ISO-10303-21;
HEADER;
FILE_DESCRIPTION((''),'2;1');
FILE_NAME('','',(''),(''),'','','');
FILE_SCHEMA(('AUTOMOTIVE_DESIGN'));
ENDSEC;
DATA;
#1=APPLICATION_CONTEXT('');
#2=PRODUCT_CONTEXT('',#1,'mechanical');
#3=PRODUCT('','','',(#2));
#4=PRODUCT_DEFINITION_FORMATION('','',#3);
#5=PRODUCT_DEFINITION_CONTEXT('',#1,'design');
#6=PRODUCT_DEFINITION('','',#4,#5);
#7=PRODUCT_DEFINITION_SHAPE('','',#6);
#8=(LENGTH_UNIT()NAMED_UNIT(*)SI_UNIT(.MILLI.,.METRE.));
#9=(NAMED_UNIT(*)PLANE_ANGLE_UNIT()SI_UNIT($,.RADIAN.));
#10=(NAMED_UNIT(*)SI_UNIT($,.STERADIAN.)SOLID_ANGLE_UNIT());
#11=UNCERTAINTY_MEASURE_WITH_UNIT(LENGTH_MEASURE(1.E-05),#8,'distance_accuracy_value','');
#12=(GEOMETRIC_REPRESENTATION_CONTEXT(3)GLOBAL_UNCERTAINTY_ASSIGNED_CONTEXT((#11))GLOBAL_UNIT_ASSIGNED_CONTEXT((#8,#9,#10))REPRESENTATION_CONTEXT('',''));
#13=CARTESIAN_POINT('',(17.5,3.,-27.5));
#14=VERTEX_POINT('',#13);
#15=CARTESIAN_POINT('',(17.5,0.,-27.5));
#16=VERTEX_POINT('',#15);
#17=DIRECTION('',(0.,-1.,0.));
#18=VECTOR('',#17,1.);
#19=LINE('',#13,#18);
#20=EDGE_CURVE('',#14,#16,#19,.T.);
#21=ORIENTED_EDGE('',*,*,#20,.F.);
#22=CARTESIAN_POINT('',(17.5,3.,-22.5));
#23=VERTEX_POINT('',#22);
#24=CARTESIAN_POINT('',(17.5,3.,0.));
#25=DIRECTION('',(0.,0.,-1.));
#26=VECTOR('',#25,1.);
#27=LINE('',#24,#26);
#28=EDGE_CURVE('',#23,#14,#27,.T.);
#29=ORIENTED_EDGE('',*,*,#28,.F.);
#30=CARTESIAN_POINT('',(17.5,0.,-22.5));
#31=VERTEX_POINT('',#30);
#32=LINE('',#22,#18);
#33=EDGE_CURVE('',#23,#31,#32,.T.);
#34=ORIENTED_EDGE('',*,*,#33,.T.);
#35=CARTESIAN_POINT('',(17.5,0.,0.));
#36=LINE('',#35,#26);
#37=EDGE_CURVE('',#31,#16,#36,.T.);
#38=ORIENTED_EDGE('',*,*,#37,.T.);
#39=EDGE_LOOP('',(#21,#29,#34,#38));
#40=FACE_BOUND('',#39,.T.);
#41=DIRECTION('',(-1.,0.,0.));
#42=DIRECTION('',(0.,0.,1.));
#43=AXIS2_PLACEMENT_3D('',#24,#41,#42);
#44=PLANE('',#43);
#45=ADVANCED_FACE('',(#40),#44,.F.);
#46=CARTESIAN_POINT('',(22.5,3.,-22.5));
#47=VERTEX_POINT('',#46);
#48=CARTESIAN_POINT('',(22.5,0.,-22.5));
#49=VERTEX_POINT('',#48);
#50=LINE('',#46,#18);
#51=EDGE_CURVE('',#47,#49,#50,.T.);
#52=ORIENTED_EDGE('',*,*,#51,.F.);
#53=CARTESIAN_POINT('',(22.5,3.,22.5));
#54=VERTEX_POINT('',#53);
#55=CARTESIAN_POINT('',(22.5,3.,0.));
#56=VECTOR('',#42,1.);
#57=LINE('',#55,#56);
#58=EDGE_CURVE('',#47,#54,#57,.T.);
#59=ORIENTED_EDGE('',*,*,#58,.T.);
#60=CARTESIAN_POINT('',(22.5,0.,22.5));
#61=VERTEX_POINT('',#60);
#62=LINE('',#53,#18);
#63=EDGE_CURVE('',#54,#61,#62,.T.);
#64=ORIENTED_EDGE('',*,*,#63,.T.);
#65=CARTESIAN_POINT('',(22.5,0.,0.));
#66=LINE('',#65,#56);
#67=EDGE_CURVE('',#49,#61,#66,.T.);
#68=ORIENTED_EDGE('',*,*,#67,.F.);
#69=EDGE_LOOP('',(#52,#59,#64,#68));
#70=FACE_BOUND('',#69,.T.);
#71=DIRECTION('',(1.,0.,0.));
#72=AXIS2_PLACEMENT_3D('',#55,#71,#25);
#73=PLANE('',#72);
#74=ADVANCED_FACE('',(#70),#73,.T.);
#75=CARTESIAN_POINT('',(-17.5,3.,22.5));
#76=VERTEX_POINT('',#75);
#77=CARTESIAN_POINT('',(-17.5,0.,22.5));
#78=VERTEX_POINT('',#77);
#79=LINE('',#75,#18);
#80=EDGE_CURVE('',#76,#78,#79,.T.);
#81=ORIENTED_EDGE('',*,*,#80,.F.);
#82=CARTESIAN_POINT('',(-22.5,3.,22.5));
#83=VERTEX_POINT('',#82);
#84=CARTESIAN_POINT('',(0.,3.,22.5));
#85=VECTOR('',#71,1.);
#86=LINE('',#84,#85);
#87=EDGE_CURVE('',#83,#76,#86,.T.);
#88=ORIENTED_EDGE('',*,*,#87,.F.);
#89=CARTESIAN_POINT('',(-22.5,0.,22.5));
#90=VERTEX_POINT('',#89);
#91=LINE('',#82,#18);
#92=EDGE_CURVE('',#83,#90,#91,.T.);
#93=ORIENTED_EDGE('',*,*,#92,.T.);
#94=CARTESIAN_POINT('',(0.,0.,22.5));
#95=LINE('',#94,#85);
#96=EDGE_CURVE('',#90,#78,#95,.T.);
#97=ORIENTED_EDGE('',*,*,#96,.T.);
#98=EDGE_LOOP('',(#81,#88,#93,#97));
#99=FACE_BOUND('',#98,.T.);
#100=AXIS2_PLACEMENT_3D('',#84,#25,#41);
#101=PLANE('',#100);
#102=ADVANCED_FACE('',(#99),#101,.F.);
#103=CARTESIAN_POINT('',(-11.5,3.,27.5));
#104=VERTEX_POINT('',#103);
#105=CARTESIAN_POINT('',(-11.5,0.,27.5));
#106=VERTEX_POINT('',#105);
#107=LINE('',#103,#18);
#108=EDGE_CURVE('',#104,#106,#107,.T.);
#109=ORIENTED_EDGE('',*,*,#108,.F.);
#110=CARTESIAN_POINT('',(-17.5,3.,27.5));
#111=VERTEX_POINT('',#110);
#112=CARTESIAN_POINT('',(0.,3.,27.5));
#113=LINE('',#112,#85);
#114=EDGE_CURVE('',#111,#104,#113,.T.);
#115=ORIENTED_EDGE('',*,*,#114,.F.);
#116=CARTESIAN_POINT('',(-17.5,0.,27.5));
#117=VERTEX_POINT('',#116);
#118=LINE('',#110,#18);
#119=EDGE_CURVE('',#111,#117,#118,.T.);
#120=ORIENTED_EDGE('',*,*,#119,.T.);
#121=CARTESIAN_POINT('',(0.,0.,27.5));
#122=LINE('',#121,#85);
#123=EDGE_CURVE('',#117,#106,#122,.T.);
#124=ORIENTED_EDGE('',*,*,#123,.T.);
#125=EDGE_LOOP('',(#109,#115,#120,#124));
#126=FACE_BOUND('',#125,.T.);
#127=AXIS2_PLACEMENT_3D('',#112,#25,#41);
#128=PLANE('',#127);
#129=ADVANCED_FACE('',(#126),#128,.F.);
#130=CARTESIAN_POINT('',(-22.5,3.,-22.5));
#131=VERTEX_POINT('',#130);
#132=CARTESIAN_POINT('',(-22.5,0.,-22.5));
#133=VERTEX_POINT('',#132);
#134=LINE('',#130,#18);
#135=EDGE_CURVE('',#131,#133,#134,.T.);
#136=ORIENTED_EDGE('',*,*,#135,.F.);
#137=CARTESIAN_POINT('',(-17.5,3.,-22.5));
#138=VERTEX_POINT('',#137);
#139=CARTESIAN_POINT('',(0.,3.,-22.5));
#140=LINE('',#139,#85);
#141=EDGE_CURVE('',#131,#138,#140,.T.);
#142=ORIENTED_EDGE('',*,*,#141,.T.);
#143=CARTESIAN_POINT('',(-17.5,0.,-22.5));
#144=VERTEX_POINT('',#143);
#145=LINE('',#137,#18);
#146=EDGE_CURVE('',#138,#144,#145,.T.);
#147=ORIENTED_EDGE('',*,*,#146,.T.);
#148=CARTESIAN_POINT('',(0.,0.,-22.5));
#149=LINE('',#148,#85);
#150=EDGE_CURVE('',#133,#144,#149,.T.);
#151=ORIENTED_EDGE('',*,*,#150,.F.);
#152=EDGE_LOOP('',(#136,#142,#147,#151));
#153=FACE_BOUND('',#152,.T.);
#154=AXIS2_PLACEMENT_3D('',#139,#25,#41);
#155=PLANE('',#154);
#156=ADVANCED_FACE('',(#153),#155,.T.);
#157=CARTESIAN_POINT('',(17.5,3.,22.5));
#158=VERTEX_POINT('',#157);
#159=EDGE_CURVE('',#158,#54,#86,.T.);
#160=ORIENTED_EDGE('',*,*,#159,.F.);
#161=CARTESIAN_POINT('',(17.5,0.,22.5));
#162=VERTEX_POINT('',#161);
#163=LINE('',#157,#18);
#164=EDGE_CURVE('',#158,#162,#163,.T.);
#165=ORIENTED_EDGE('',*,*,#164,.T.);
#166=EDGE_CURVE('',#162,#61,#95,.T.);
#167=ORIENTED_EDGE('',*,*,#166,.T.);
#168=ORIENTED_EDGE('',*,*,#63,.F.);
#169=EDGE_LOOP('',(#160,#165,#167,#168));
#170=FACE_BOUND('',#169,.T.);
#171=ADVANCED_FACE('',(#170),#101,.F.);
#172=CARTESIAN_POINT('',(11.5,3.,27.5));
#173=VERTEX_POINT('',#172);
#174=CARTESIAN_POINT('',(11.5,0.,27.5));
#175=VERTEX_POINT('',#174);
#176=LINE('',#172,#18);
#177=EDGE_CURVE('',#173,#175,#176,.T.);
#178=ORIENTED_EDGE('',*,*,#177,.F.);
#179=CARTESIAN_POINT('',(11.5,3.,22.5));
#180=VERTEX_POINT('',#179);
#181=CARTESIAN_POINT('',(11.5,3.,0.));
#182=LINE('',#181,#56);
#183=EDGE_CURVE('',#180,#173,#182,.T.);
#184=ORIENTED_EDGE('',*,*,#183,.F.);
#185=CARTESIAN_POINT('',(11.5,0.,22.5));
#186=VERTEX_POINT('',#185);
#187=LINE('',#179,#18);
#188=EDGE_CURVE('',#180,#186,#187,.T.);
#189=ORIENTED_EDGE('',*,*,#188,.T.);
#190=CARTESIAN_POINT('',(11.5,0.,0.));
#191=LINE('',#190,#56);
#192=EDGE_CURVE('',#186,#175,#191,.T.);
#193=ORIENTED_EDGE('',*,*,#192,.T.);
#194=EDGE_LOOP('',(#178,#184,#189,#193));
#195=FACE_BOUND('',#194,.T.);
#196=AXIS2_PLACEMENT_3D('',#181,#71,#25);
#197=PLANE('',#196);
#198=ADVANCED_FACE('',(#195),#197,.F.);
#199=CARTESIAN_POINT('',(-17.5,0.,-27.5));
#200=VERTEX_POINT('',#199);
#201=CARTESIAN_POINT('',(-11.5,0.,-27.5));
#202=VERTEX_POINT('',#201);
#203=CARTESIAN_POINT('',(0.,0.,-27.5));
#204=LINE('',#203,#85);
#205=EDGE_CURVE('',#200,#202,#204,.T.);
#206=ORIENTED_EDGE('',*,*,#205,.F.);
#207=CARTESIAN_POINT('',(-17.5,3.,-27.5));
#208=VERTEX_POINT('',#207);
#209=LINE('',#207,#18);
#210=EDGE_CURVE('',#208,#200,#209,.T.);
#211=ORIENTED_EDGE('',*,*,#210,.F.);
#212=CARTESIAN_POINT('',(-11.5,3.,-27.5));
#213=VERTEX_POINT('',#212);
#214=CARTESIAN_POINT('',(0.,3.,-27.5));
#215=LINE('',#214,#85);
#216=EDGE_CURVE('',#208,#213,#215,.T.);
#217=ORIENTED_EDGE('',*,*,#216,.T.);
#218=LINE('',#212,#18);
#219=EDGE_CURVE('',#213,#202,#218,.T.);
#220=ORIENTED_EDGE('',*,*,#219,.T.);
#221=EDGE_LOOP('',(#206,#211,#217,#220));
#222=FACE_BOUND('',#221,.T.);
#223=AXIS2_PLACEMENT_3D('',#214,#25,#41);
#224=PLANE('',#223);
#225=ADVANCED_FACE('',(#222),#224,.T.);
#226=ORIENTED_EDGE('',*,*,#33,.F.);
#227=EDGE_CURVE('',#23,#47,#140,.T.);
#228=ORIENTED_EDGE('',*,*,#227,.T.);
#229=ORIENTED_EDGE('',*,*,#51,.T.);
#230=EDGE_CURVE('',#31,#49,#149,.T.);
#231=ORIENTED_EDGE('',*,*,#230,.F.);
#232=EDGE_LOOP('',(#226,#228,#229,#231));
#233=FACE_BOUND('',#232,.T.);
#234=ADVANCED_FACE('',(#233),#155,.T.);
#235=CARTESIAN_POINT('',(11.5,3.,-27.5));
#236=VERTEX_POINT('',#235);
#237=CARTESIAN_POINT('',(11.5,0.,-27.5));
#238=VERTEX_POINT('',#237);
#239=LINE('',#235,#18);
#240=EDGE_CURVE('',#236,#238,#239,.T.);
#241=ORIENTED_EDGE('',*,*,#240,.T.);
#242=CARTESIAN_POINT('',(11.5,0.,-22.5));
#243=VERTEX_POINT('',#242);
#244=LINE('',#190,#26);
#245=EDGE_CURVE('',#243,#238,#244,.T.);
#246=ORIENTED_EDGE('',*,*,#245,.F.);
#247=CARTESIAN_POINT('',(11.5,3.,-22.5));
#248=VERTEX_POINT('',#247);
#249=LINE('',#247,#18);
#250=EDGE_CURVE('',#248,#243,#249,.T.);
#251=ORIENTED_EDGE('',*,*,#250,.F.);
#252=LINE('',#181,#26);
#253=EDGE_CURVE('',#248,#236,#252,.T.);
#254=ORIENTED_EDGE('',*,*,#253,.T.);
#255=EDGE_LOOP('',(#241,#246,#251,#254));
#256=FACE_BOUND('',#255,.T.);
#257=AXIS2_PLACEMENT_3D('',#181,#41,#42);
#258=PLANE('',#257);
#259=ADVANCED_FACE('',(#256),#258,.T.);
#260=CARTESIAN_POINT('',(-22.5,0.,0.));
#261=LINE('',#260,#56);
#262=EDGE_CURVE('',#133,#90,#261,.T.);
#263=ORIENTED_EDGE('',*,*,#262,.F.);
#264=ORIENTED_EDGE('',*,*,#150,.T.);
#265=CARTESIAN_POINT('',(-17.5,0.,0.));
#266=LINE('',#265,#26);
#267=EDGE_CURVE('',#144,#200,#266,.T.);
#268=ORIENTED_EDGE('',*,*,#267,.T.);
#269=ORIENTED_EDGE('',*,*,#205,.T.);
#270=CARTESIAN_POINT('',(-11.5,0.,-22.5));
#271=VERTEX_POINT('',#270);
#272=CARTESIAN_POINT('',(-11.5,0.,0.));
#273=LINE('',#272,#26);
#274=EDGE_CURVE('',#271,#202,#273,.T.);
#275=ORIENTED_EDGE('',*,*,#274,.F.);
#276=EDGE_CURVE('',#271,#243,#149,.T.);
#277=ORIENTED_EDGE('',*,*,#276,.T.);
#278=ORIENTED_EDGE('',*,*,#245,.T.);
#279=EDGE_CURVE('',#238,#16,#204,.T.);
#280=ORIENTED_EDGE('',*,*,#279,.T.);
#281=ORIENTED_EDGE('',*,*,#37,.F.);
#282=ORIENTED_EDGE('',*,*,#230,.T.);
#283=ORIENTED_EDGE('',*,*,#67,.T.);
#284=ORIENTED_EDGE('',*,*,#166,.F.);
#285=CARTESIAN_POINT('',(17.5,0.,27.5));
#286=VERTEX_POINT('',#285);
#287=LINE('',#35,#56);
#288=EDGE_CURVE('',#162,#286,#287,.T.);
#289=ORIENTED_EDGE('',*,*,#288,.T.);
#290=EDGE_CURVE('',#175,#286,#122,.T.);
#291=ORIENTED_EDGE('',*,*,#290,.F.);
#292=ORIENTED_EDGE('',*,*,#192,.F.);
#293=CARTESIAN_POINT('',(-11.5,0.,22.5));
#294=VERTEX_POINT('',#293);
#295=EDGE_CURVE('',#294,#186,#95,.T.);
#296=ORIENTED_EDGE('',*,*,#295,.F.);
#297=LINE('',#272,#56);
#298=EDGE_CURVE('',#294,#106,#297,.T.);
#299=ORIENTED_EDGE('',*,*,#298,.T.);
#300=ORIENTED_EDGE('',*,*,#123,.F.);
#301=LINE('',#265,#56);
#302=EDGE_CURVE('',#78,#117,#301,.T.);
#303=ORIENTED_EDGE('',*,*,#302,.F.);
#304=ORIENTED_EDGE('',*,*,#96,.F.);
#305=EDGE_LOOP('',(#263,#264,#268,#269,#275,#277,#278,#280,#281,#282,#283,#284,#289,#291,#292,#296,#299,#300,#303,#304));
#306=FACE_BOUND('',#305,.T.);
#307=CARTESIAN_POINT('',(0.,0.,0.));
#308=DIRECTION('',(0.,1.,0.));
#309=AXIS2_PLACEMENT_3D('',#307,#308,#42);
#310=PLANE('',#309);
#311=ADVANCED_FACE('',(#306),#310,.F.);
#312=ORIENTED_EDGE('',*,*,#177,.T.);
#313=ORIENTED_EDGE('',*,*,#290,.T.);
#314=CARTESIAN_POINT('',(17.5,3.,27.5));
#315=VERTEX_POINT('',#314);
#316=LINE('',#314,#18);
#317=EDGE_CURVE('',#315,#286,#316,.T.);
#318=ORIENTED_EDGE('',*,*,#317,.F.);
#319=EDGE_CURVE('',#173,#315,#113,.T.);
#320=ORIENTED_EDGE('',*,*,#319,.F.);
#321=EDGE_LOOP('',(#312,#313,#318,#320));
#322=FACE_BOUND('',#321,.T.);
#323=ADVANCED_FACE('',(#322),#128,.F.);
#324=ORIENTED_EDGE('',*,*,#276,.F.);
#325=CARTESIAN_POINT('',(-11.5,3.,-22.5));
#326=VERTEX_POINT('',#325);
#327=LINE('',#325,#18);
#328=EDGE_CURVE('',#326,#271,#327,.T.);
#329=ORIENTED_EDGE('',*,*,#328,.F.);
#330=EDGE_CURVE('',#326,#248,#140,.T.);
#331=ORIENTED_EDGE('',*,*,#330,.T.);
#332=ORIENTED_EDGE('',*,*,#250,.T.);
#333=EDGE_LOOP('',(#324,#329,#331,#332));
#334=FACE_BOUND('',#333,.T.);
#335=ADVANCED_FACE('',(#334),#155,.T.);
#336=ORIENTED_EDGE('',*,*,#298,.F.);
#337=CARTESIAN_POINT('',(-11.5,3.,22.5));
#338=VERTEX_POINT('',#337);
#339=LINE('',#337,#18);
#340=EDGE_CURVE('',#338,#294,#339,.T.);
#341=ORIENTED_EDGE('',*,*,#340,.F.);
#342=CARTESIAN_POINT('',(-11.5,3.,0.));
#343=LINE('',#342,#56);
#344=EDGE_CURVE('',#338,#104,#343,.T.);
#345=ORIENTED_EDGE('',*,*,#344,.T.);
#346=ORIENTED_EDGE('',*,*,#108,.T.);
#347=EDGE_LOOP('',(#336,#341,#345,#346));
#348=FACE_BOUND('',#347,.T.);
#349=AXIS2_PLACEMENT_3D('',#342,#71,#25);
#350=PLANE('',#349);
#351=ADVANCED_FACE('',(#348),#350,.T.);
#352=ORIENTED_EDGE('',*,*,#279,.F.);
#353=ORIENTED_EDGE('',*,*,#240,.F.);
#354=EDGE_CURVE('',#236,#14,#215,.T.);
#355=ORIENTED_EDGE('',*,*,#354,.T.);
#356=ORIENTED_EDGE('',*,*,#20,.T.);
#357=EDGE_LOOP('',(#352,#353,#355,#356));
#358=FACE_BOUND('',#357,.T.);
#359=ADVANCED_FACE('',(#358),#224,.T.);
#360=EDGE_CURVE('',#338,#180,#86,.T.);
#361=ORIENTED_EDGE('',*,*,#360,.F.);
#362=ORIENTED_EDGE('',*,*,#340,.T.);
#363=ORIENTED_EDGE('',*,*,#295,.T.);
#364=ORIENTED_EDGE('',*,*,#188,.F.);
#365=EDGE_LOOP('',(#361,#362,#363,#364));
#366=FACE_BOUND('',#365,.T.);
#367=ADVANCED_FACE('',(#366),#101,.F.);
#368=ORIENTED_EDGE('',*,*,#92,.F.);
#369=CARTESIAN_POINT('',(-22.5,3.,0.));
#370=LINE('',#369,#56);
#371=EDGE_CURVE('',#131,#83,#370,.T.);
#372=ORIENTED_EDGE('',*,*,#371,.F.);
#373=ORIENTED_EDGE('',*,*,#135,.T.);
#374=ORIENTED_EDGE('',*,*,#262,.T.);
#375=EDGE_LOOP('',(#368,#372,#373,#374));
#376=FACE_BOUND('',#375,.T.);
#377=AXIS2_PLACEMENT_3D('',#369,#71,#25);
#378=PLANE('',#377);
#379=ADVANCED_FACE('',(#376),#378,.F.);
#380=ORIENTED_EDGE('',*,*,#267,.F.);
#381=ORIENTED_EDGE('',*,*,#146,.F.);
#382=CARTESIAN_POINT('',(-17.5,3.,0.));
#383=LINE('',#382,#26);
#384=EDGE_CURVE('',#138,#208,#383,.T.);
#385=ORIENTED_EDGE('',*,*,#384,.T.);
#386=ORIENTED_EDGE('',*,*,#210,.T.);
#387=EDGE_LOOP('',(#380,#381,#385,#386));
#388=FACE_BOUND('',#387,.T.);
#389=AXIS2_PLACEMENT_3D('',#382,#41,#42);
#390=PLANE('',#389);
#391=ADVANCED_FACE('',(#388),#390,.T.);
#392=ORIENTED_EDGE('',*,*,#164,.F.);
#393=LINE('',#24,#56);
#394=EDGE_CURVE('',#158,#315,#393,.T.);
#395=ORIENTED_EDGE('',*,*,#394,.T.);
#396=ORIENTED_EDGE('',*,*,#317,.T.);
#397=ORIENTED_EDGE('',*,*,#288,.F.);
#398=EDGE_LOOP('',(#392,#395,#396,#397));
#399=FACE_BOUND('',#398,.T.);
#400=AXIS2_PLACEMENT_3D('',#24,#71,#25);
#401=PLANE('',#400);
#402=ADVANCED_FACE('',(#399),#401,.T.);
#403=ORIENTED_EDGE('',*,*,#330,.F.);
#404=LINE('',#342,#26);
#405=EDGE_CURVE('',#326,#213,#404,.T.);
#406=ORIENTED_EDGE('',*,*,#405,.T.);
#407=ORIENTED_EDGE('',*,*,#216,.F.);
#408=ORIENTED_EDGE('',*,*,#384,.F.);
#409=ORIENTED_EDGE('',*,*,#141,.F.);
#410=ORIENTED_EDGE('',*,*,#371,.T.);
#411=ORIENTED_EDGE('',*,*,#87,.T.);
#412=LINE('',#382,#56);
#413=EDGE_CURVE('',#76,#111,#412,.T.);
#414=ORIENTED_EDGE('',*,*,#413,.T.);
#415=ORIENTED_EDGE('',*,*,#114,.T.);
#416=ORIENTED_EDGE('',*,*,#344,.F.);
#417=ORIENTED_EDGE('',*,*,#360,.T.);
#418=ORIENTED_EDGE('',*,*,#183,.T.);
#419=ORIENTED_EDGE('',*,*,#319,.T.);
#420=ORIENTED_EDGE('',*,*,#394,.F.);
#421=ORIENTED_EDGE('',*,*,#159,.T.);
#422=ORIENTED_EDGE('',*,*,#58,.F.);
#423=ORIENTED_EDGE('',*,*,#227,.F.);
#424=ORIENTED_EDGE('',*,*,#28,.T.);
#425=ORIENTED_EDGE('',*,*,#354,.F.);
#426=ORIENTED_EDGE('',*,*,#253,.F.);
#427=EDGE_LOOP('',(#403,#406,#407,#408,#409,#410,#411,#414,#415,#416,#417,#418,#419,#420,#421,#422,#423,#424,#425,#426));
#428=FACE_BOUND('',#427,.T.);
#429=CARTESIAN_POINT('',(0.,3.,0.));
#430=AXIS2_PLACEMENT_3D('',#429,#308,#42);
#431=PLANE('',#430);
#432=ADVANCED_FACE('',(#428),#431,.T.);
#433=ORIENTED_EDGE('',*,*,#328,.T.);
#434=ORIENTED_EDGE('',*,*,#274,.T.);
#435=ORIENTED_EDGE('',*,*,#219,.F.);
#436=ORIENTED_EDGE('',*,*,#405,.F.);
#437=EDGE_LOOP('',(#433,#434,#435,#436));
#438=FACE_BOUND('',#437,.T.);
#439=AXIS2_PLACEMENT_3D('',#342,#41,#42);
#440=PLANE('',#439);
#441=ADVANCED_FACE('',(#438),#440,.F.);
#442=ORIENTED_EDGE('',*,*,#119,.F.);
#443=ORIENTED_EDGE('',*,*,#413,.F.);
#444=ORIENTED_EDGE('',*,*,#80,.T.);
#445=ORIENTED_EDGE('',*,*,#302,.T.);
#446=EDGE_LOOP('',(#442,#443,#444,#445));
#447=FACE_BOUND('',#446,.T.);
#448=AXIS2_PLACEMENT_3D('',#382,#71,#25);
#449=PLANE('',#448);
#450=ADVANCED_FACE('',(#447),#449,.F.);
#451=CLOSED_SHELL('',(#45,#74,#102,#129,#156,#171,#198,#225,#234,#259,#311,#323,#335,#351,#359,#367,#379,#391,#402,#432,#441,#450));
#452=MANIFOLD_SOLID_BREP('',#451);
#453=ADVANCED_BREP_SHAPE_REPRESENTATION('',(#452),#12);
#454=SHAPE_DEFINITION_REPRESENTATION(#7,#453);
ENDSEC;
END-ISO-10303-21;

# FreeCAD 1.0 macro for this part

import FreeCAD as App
import Part
import Sketcher
Q = App.Units.Quantity


def add_polygon(sketch, points):
    """Adds a closed chain of lines whose ends are joined by coincident constraints."""
    first, n = sketch.GeometryCount, len(points)
    for a, b in zip(points, points[1:] + points[:1]):
        sketch.addGeometry(Part.LineSegment(App.Vector(*a, 0), App.Vector(*b, 0)), False)
    for i in range(n):
        sketch.addConstraint(Sketcher.Constraint("Coincident", first + i, 2, first + (i + 1) % n, 1))

doc = App.newDocument("Part")
body = doc.addObject("PartDesign::Body", "Body")

# Sketch on XZ plane
sketch1 = body.newObject("Sketcher::SketchObject", "Sketch")
sketch1.AttachmentSupport = (doc.getObject("XZ_Plane"), [""])
sketch1.MapMode = "FlatFace"
add_polygon(sketch1, [(-22, -22), (-22, 22), (-18, 22), (-18, 28), (-12, 28), (-12, 22), (12, 22), (12, 28), (18, 28), (18, 22), (22, 22), (22, -22), (18, -22), (18, -28), (12, -28), (12, -22), (-12, -22), (-12, -28), (-18, -28), (-18, -22)])  # lines 0-19
sketch1.addConstraint([
    Sketcher.Constraint("Vertical", 0),
    Sketcher.Constraint("Horizontal", 1),
    Sketcher.Constraint("Vertical", 2),
    Sketcher.Constraint("Horizontal", 3),
    Sketcher.Constraint("Vertical", 4),
    Sketcher.Constraint("Horizontal", 5),
    Sketcher.Constraint("Vertical", 6),
    Sketcher.Constraint("Horizontal", 7),
    Sketcher.Constraint("Vertical", 8),
    Sketcher.Constraint("Horizontal", 9),
    Sketcher.Constraint("Vertical", 10),
    Sketcher.Constraint("Horizontal", 11),
    Sketcher.Constraint("Vertical", 12),
    Sketcher.Constraint("Horizontal", 13),
    Sketcher.Constraint("Vertical", 14),
    Sketcher.Constraint("Horizontal", 15),
    Sketcher.Constraint("Vertical", 16),
    Sketcher.Constraint("Horizontal", 17),
    Sketcher.Constraint("Vertical", 18),
    Sketcher.Constraint("Horizontal", 19),
    Sketcher.Constraint("Symmetric", 0, 2, 10, 2, -1, 1),
    Sketcher.Constraint("Symmetric", 2, 2, 12, 2, -1, 1),
    Sketcher.Constraint("Symmetric", 4, 2, 14, 2, -1, 1),
    Sketcher.Constraint("Symmetric", 6, 2, 16, 2, -1, 1),
    Sketcher.Constraint("Symmetric", 8, 2, 18, 2, -1, 1),
    Sketcher.Constraint("Symmetric", 3, 2, 6, 2, -2),
    Sketcher.Constraint("Symmetric", 1, 2, 8, 2, -2),
    Sketcher.Constraint("Horizontal", 1, 2, 4, 2),
    Sketcher.Constraint("Equal", 19, 2),
    Sketcher.Constraint("DistanceX", 1, 1, 1, 2, Q("5 mm")),
    Sketcher.Constraint("DistanceX", 3, 1, 3, 2, Q("6 mm")),
    Sketcher.Constraint("DistanceX", 5, 1, 5, 2, Q("23 mm")),
    Sketcher.Constraint("DistanceY", 0, 1, 0, 2, Q("45 mm")),
])
pad1 = body.newObject("PartDesign::Pad", "Pad")
pad1.Profile = sketch1
pad1.Length = 3
pad1.Reversed = True

doc.recompute()
